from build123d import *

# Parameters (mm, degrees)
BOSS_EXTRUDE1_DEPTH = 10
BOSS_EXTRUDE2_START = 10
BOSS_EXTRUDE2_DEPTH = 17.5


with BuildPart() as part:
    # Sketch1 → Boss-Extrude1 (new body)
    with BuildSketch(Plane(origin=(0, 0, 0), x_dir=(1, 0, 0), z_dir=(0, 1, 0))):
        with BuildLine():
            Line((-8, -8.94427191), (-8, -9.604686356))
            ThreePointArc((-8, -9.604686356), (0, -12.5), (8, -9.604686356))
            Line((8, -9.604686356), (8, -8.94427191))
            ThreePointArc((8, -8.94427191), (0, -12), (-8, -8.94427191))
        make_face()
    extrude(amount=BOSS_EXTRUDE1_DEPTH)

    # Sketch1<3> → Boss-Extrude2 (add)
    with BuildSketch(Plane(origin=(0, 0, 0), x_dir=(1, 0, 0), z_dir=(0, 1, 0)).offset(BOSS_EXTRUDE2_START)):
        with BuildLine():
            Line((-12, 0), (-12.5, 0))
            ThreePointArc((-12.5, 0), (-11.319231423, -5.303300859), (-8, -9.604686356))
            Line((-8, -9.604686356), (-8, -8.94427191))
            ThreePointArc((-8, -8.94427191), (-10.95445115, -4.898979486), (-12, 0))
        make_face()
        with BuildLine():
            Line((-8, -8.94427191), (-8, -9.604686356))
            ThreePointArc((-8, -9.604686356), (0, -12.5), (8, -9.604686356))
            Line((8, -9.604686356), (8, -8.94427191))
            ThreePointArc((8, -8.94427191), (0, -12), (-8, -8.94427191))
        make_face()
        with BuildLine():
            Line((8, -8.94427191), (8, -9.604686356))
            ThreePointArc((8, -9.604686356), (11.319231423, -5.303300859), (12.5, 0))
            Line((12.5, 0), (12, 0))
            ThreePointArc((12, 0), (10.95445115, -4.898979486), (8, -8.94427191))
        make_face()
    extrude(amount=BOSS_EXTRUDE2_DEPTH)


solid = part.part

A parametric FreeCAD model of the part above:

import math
import FreeCAD as App
import Part
import Sketcher

V = App.Vector

doc = App.newDocument("Part")
body = doc.addObject("PartDesign::Body", "Body")

# Sketch on XZ plane
sketch1 = body.newObject("Sketcher::SketchObject", "Sketch")
sketch1.AttachmentSupport = (doc.getObject("XZ_Plane"), [""])
sketch1.MapMode = "FlatFace"
sketch1.addGeometry([
    Part.LineSegment(V(-8, 8.9, 0), V(-8, 9.6, 0)),
    Part.ArcOfCircle(Part.Circle(V(0, 0, 0), V(0, 0, 1), 12.5), math.radians(50), math.radians(130)),
    Part.LineSegment(V(8, 9.6, 0), V(8, 8.9, 0)),
    Part.ArcOfCircle(Part.Circle(V(0, 0, 0), V(0, 0, 1), 12), math.radians(48), math.radians(132)),
], False)
sketch1.addConstraint([
    Sketcher.Constraint("Coincident", 0, 2, 1, 2),
    Sketcher.Constraint("Coincident", 1, 1, 2, 1),
    Sketcher.Constraint("Coincident", 2, 2, 3, 1),
    Sketcher.Constraint("Coincident", 3, 2, 0, 1),
    Sketcher.Constraint("Vertical", 0),
    Sketcher.Constraint("Vertical", 2),
    Sketcher.Constraint("Coincident", 1, 3, -1, 1),
    Sketcher.Constraint("Coincident", 3, 3, -1, 1),
    Sketcher.Constraint("Horizontal", 0, 2, 1, 1),
    Sketcher.Constraint("Radius", 3, 12.0),
    Sketcher.Constraint("Radius", 1, 12.5),
    Sketcher.Constraint("DistanceX", 0, 2, -1, 1, 8.0),
])
pad1 = body.newObject("PartDesign::Pad", "Pad")
pad1.Profile = sketch1
pad1.Length = 10
pad1.Reversed = True

# Sketch on XZ plane
sketch2 = body.newObject("Sketcher::SketchObject", "Sketch001")
sketch2.AttachmentSupport = (doc.getObject("XZ_Plane"), [""])
sketch2.MapMode = "FlatFace"
sketch2.AttachmentOffset = App.Placement(V(0, 0, -10), App.Rotation())
sketch2.addGeometry([
    Part.LineSegment(V(-12, 0, 0), V(-12.5, 0, 0)),  # 0
    Part.ArcOfCircle(Part.Circle(V(0, 0, 0), V(0, 0, 1), 12.5), math.radians(130), math.radians(180)),  # 1
    Part.ArcOfCircle(Part.Circle(V(0, 0, 0), V(0, 0, 1), 12.5), math.radians(50), math.radians(130)),  # 2
    Part.ArcOfCircle(Part.Circle(V(0, 0, 0), V(0, 0, 1), 12.5), math.radians(0), math.radians(50)),  # 3
    Part.LineSegment(V(12.5, 0, 0), V(12, 0, 0)),  # 4
    Part.ArcOfCircle(Part.Circle(V(0, 0, 0), V(0, 0, 1), 12), math.radians(0), math.radians(48)),  # 5
    Part.ArcOfCircle(Part.Circle(V(0, 0, 0), V(0, 0, 1), 12), math.radians(48), math.radians(132)),  # 6
    Part.ArcOfCircle(Part.Circle(V(0, 0, 0), V(0, 0, 1), 12), math.radians(132), math.radians(180)),  # 7
], False)
sketch2.addConstraint([
    Sketcher.Constraint("Coincident", 0, 2, 1, 2),
    Sketcher.Constraint("Tangent", 1, 1, 2, 2),
    Sketcher.Constraint("Tangent", 2, 1, 3, 2),
    Sketcher.Constraint("Coincident", 3, 1, 4, 1),
    Sketcher.Constraint("Coincident", 4, 2, 5, 1),
    Sketcher.Constraint("Tangent", 5, 2, 6, 1),
    Sketcher.Constraint("Tangent", 6, 2, 7, 1),
    Sketcher.Constraint("Coincident", 7, 2, 0, 1),
    Sketcher.Constraint("Horizontal", 0),
    Sketcher.Constraint("Horizontal", 4),
    Sketcher.Constraint("Coincident", 1, 3, -1, 1),
    Sketcher.Constraint("Coincident", 3, 3, -1, 1),
    Sketcher.Constraint("Coincident", 5, 3, -1, 1),
    Sketcher.Constraint("Coincident", 7, 3, -1, 1),
    Sketcher.Constraint("PointOnObject", 0, 2, -1),
    Sketcher.Constraint("PointOnObject", 3, 1, -1),
    Sketcher.Constraint("Horizontal", 1, 1, 2, 1),
    Sketcher.Constraint("Horizontal", 5, 2, 6, 2),
    Sketcher.Constraint("Vertical", 2, 1, 5, 2),
    Sketcher.Constraint("Radius", 5, 12.0),
    Sketcher.Constraint("Radius", 1, 12.5),
    Sketcher.Constraint("DistanceX", 1, 1, -1, 1, 8.0),
])
pad2 = body.newObject("PartDesign::Pad", "Pad001")
pad2.Profile = sketch2
pad2.Length = 17.5
pad2.Reversed = True

doc.recompute()
